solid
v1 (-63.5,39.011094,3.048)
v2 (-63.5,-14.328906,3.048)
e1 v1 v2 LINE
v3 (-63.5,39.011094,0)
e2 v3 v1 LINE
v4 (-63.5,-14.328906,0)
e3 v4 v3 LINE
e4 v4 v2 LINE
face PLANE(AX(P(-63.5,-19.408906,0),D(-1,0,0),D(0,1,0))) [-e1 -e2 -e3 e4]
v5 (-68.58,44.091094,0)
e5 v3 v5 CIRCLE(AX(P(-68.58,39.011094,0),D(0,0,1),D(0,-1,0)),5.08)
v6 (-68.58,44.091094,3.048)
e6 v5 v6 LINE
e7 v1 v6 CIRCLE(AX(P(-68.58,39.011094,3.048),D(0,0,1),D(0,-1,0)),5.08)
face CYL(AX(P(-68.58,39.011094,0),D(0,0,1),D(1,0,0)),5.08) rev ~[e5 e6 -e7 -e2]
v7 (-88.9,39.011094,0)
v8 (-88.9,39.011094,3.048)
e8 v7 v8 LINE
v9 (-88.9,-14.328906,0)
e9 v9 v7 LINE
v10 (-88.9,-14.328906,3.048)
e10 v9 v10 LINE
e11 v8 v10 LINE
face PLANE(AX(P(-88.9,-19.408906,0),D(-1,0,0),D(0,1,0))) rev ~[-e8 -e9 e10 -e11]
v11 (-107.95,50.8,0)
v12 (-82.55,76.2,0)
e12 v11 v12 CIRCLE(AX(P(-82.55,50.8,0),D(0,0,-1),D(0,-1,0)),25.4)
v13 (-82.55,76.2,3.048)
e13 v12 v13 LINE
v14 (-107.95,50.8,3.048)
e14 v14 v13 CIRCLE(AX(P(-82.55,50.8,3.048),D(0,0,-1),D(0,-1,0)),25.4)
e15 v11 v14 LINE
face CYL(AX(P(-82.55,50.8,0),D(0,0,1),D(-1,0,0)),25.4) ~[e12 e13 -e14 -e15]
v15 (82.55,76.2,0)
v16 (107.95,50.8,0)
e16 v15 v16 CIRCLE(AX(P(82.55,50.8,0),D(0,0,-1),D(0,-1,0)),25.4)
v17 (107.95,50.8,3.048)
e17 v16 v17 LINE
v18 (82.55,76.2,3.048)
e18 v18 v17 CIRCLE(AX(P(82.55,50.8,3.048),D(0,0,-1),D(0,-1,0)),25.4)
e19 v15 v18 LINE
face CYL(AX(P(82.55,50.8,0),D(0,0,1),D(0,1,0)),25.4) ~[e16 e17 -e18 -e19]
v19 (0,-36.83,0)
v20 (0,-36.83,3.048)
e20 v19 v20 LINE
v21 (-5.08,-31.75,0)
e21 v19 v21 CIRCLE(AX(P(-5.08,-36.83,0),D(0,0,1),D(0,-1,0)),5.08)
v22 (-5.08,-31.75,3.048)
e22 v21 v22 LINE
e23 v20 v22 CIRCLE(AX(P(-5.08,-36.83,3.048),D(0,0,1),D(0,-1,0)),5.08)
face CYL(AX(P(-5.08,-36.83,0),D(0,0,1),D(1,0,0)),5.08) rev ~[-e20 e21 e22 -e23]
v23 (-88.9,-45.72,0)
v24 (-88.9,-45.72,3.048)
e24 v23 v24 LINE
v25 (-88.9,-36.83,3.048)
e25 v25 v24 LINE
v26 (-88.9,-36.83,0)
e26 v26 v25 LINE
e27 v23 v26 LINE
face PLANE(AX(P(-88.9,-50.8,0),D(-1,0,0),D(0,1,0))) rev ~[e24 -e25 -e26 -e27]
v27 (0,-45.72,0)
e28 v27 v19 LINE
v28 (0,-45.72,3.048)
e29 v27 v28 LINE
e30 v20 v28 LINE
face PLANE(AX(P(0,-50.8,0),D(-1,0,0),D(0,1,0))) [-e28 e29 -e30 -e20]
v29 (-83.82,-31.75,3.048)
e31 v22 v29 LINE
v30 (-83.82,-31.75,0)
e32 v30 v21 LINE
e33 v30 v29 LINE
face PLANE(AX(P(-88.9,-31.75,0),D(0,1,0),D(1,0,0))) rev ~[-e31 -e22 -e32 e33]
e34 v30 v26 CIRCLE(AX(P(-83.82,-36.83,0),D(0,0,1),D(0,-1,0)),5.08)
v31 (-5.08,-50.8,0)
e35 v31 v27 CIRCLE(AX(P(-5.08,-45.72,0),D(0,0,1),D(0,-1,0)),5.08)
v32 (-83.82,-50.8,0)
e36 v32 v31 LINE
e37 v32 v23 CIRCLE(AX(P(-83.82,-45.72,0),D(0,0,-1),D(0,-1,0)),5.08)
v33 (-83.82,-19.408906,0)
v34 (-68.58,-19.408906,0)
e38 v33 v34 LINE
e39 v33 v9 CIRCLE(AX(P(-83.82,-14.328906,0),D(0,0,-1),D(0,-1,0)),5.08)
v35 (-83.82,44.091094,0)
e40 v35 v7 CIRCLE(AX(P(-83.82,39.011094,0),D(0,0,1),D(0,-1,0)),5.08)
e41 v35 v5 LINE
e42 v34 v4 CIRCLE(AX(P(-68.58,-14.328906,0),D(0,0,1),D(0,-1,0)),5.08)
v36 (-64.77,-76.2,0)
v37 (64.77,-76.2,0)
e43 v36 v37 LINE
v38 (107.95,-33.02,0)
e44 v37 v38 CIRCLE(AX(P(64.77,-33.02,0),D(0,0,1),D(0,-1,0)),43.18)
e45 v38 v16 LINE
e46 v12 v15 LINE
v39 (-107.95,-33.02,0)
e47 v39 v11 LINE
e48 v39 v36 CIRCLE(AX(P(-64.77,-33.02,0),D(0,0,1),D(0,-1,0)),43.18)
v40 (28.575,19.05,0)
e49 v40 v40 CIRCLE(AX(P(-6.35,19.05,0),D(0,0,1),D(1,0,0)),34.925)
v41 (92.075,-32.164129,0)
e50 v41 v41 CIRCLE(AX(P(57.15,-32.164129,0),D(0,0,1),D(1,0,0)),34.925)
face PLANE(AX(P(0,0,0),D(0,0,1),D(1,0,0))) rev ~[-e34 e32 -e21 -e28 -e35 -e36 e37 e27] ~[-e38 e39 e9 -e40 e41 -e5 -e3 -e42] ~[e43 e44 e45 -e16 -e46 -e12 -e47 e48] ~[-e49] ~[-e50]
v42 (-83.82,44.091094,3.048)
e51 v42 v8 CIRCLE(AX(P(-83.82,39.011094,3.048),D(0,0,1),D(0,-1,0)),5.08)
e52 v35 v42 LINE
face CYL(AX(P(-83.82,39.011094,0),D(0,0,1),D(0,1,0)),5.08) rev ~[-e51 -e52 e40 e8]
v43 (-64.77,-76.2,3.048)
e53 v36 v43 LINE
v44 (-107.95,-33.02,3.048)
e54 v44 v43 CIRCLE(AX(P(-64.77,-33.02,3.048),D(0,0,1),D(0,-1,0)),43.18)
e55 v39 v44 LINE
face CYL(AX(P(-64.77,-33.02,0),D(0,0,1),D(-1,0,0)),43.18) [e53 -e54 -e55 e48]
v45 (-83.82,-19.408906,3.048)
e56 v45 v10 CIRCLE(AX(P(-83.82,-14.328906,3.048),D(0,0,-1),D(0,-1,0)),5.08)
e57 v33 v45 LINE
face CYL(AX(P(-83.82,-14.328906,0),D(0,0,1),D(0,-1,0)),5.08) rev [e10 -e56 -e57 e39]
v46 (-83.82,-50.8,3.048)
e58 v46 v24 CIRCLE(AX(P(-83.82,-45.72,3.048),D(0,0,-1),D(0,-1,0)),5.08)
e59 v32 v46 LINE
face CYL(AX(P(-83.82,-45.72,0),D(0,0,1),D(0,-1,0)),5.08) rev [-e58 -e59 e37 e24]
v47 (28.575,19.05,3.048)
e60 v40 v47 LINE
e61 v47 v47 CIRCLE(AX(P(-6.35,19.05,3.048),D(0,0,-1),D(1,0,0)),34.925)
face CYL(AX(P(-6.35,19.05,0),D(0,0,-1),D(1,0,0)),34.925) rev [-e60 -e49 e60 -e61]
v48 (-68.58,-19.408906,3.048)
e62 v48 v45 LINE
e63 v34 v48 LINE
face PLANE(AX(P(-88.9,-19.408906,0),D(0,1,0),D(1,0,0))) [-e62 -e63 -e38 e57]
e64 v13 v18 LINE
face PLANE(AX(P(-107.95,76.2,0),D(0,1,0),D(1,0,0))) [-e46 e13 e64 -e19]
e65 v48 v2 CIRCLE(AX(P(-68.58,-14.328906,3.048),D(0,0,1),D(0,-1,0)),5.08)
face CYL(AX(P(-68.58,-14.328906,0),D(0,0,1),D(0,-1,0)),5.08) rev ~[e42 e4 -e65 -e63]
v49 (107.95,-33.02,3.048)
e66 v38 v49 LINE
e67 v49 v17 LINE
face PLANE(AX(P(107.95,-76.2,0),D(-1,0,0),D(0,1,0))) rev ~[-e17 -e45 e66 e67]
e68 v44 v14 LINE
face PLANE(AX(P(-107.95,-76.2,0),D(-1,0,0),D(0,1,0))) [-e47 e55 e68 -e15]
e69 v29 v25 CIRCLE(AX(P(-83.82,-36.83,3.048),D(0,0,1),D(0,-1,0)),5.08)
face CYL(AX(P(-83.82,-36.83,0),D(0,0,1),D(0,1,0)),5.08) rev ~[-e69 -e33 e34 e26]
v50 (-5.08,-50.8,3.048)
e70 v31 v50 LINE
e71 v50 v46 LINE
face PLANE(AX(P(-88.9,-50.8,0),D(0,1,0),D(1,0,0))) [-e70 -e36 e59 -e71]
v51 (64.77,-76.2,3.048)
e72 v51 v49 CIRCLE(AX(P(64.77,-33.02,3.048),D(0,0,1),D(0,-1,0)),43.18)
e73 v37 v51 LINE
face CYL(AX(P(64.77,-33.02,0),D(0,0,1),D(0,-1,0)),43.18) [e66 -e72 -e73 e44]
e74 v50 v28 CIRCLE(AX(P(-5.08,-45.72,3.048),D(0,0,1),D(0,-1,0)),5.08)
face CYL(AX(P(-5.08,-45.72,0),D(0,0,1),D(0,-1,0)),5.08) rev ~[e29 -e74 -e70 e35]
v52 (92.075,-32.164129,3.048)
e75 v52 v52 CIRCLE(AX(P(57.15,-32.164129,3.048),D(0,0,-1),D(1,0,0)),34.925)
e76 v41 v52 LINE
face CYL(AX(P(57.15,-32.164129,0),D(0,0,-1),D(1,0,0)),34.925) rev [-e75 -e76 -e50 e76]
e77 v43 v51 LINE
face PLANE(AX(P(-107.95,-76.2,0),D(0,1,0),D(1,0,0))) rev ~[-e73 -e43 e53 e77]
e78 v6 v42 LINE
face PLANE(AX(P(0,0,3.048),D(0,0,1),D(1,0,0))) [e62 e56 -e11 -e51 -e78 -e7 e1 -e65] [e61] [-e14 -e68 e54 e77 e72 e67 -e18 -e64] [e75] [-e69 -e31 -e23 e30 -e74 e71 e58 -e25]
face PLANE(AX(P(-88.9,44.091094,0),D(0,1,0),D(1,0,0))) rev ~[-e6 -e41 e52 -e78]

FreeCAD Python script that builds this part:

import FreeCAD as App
import Part
import Sketcher

V = App.Vector
Q = App.Units.Quantity


def edges_at(feature, points):
    """Names of the edges that pass closest to the given points."""
    edges = feature.Shape.Edges
    near = lambda p: min(range(len(edges)), key=lambda i: edges[i].distToShape(Part.Vertex(*p))[0])
    return sorted({f"Edge{near(p) + 1}" for p in points})


def add_polygon(sketch, points):
    """Adds a closed chain of lines whose ends are joined by coincident constraints."""
    first, n = sketch.GeometryCount, len(points)
    for a, b in zip(points, points[1:] + points[:1]):
        sketch.addGeometry(Part.LineSegment(App.Vector(*a, 0), App.Vector(*b, 0)), False)
    for i in range(n):
        sketch.addConstraint(Sketcher.Constraint("Coincident", first + i, 2, first + (i + 1) % n, 1))

doc = App.newDocument("Part")
body = doc.addObject("PartDesign::Body", "Body")

sketch1 = doc.addObject("Sketcher::SketchObject", "Sketch")
body.addObject(sketch1)
sketch1.AttachmentSupport = (doc.XY_Plane, [""])
sketch1.MapMode = "FlatFace"
add_polygon(sketch1, [(-107.95, 76.2), (-107.95, -76.2), (107.95, -76.2), (107.95, 76.2)])
sketch1.addConstraint(Sketcher.Constraint("Vertical", 0))
sketch1.addConstraint(Sketcher.Constraint("Horizontal", 1))
sketch1.addConstraint(Sketcher.Constraint("Vertical", 2))
sketch1.addConstraint(Sketcher.Constraint("Horizontal", 3))
sketch1.addConstraint(Sketcher.Constraint("Symmetric", 0, 2, 2, 2, -1, 1))
sketch1.addConstraint(Sketcher.Constraint("DistanceY", 0, 2, 0, 1, Q("6 in")))
sketch1.addConstraint(Sketcher.Constraint("DistanceX", 1, 1, 1, 2, Q("8.5 in")))
pad1 = doc.addObject("PartDesign::Pad", "Pad")
body.addObject(pad1)
pad1.Profile = sketch1
pad1.Length = Q("0.12 in")

sketch2 = doc.addObject("Sketcher::SketchObject", "Sketch001")
body.addObject(sketch2)
sketch2.AttachmentSupport = (doc.XY_Plane, [""])
sketch2.MapMode = "FlatFace"
add_polygon(sketch2, [(-88.9, 44.091094), (-88.9, -19.408906), (-63.5, -19.408906), (-63.5, 44.091094)])
sketch2.addGeometry(Part.Circle(V(-6.35, 19.05, 0), V(0, 0, 1), 34.925), False)
sketch2.addGeometry(Part.Circle(V(57.15, -32.164129, 0), V(0, 0, 1), 34.925), False)
add_polygon(sketch2, [(-88.9, -31.75), (-88.9, -50.8), (0, -50.8), (0, -31.75)])
sketch2.addConstraint(Sketcher.Constraint("Vertical", 0))
sketch2.addConstraint(Sketcher.Constraint("Horizontal", 1))
sketch2.addConstraint(Sketcher.Constraint("Vertical", 2))
sketch2.addConstraint(Sketcher.Constraint("Horizontal", 3))
sketch2.addConstraint(Sketcher.Constraint("Vertical", 6))
sketch2.addConstraint(Sketcher.Constraint("Horizontal", 7))
sketch2.addConstraint(Sketcher.Constraint("Vertical", 8))
sketch2.addConstraint(Sketcher.Constraint("Horizontal", 9))
sketch2.addConstraint(Sketcher.Constraint("Equal", 4, 5))
sketch2.addConstraint(Sketcher.Constraint("PointOnObject", 7, 2, -2))
sketch2.addConstraint(Sketcher.Constraint("Vertical", 3, 2, 6, 2))
sketch2.addConstraint(Sketcher.Constraint("Diameter", 4, Q("2.75 in")))
sketch2.addConstraint(Sketcher.Constraint("DistanceX", 1, 1, 1, 2, Q("1 in")))
sketch2.addConstraint(Sketcher.Constraint("DistanceX", 7, 1, 7, 2, Q("3.5 in")))
sketch2.addConstraint(Sketcher.Constraint("DistanceY", 0, 2, 0, 1, Q("2.5 in")))
sketch2.addConstraint(Sketcher.Constraint("DistanceY", 6, 2, -1, 1, Q("2 in")))
sketch2.addConstraint(Sketcher.Constraint("DistanceY", 8, 2, 4, 3, Q("2 in")))
sketch2.addConstraint(Sketcher.Constraint("DistanceY", 6, 2, 6, 1, Q("0.75 in")))
sketch2.addConstraint(Sketcher.Constraint("DistanceX", 4, 3, 5, 3, Q("2.5 in")))
sketch2.addConstraint(Sketcher.Constraint("DistanceX", 4, 3, -1, 1, Q("0.25 in")))
sketch2.addConstraint(Sketcher.Constraint("DistanceY", 5, 3, -1, 1, 32.164129))
sketch2.addConstraint(Sketcher.Constraint("DistanceY", 0, 2, -1, 1, 19.408906))
pocket1 = doc.addObject("PartDesign::Pocket", "Pocket")
body.addObject(pocket1)
pocket1.Profile = sketch2
pocket1.Length = Q("1 in")
pocket1.Reversed = True
doc.recompute()

fillet = doc.addObject("PartDesign::Fillet", "Fillet")
body.addObject(fillet)
fillet.Base = (pocket1, edges_at(pocket1, [(-107.95, -76.2, 1.524), (107.95, -76.2, 1.524)]))
fillet.Radius = Q("1.7 in")
doc.recompute()

fillet2 = doc.addObject("PartDesign::Fillet", "Fillet001")
body.addObject(fillet2)
fillet2.Base = (fillet, edges_at(fillet, [
    (-88.9, 44.091, 1.524),
    (-63.5, 44.091, 1.524),
    (-88.9, -19.409, 1.524),
    (-63.5, -19.409, 1.524),
    (0, -50.8, 1.524),
    (0, -31.75, 1.524),
    (-88.9, -50.8, 1.524),
    (-88.9, -31.75, 1.524),
]))
fillet2.Radius = Q("0.2 in")
doc.recompute()

fillet3 = doc.addObject("PartDesign::Fillet", "Fillet002")
body.addObject(fillet3)
fillet3.Base = (fillet2, edges_at(fillet2, [(-107.95, 76.2, 1.524), (107.95, 76.2, 1.524)]))
fillet3.Radius = Q("1 in")

doc.recompute()
